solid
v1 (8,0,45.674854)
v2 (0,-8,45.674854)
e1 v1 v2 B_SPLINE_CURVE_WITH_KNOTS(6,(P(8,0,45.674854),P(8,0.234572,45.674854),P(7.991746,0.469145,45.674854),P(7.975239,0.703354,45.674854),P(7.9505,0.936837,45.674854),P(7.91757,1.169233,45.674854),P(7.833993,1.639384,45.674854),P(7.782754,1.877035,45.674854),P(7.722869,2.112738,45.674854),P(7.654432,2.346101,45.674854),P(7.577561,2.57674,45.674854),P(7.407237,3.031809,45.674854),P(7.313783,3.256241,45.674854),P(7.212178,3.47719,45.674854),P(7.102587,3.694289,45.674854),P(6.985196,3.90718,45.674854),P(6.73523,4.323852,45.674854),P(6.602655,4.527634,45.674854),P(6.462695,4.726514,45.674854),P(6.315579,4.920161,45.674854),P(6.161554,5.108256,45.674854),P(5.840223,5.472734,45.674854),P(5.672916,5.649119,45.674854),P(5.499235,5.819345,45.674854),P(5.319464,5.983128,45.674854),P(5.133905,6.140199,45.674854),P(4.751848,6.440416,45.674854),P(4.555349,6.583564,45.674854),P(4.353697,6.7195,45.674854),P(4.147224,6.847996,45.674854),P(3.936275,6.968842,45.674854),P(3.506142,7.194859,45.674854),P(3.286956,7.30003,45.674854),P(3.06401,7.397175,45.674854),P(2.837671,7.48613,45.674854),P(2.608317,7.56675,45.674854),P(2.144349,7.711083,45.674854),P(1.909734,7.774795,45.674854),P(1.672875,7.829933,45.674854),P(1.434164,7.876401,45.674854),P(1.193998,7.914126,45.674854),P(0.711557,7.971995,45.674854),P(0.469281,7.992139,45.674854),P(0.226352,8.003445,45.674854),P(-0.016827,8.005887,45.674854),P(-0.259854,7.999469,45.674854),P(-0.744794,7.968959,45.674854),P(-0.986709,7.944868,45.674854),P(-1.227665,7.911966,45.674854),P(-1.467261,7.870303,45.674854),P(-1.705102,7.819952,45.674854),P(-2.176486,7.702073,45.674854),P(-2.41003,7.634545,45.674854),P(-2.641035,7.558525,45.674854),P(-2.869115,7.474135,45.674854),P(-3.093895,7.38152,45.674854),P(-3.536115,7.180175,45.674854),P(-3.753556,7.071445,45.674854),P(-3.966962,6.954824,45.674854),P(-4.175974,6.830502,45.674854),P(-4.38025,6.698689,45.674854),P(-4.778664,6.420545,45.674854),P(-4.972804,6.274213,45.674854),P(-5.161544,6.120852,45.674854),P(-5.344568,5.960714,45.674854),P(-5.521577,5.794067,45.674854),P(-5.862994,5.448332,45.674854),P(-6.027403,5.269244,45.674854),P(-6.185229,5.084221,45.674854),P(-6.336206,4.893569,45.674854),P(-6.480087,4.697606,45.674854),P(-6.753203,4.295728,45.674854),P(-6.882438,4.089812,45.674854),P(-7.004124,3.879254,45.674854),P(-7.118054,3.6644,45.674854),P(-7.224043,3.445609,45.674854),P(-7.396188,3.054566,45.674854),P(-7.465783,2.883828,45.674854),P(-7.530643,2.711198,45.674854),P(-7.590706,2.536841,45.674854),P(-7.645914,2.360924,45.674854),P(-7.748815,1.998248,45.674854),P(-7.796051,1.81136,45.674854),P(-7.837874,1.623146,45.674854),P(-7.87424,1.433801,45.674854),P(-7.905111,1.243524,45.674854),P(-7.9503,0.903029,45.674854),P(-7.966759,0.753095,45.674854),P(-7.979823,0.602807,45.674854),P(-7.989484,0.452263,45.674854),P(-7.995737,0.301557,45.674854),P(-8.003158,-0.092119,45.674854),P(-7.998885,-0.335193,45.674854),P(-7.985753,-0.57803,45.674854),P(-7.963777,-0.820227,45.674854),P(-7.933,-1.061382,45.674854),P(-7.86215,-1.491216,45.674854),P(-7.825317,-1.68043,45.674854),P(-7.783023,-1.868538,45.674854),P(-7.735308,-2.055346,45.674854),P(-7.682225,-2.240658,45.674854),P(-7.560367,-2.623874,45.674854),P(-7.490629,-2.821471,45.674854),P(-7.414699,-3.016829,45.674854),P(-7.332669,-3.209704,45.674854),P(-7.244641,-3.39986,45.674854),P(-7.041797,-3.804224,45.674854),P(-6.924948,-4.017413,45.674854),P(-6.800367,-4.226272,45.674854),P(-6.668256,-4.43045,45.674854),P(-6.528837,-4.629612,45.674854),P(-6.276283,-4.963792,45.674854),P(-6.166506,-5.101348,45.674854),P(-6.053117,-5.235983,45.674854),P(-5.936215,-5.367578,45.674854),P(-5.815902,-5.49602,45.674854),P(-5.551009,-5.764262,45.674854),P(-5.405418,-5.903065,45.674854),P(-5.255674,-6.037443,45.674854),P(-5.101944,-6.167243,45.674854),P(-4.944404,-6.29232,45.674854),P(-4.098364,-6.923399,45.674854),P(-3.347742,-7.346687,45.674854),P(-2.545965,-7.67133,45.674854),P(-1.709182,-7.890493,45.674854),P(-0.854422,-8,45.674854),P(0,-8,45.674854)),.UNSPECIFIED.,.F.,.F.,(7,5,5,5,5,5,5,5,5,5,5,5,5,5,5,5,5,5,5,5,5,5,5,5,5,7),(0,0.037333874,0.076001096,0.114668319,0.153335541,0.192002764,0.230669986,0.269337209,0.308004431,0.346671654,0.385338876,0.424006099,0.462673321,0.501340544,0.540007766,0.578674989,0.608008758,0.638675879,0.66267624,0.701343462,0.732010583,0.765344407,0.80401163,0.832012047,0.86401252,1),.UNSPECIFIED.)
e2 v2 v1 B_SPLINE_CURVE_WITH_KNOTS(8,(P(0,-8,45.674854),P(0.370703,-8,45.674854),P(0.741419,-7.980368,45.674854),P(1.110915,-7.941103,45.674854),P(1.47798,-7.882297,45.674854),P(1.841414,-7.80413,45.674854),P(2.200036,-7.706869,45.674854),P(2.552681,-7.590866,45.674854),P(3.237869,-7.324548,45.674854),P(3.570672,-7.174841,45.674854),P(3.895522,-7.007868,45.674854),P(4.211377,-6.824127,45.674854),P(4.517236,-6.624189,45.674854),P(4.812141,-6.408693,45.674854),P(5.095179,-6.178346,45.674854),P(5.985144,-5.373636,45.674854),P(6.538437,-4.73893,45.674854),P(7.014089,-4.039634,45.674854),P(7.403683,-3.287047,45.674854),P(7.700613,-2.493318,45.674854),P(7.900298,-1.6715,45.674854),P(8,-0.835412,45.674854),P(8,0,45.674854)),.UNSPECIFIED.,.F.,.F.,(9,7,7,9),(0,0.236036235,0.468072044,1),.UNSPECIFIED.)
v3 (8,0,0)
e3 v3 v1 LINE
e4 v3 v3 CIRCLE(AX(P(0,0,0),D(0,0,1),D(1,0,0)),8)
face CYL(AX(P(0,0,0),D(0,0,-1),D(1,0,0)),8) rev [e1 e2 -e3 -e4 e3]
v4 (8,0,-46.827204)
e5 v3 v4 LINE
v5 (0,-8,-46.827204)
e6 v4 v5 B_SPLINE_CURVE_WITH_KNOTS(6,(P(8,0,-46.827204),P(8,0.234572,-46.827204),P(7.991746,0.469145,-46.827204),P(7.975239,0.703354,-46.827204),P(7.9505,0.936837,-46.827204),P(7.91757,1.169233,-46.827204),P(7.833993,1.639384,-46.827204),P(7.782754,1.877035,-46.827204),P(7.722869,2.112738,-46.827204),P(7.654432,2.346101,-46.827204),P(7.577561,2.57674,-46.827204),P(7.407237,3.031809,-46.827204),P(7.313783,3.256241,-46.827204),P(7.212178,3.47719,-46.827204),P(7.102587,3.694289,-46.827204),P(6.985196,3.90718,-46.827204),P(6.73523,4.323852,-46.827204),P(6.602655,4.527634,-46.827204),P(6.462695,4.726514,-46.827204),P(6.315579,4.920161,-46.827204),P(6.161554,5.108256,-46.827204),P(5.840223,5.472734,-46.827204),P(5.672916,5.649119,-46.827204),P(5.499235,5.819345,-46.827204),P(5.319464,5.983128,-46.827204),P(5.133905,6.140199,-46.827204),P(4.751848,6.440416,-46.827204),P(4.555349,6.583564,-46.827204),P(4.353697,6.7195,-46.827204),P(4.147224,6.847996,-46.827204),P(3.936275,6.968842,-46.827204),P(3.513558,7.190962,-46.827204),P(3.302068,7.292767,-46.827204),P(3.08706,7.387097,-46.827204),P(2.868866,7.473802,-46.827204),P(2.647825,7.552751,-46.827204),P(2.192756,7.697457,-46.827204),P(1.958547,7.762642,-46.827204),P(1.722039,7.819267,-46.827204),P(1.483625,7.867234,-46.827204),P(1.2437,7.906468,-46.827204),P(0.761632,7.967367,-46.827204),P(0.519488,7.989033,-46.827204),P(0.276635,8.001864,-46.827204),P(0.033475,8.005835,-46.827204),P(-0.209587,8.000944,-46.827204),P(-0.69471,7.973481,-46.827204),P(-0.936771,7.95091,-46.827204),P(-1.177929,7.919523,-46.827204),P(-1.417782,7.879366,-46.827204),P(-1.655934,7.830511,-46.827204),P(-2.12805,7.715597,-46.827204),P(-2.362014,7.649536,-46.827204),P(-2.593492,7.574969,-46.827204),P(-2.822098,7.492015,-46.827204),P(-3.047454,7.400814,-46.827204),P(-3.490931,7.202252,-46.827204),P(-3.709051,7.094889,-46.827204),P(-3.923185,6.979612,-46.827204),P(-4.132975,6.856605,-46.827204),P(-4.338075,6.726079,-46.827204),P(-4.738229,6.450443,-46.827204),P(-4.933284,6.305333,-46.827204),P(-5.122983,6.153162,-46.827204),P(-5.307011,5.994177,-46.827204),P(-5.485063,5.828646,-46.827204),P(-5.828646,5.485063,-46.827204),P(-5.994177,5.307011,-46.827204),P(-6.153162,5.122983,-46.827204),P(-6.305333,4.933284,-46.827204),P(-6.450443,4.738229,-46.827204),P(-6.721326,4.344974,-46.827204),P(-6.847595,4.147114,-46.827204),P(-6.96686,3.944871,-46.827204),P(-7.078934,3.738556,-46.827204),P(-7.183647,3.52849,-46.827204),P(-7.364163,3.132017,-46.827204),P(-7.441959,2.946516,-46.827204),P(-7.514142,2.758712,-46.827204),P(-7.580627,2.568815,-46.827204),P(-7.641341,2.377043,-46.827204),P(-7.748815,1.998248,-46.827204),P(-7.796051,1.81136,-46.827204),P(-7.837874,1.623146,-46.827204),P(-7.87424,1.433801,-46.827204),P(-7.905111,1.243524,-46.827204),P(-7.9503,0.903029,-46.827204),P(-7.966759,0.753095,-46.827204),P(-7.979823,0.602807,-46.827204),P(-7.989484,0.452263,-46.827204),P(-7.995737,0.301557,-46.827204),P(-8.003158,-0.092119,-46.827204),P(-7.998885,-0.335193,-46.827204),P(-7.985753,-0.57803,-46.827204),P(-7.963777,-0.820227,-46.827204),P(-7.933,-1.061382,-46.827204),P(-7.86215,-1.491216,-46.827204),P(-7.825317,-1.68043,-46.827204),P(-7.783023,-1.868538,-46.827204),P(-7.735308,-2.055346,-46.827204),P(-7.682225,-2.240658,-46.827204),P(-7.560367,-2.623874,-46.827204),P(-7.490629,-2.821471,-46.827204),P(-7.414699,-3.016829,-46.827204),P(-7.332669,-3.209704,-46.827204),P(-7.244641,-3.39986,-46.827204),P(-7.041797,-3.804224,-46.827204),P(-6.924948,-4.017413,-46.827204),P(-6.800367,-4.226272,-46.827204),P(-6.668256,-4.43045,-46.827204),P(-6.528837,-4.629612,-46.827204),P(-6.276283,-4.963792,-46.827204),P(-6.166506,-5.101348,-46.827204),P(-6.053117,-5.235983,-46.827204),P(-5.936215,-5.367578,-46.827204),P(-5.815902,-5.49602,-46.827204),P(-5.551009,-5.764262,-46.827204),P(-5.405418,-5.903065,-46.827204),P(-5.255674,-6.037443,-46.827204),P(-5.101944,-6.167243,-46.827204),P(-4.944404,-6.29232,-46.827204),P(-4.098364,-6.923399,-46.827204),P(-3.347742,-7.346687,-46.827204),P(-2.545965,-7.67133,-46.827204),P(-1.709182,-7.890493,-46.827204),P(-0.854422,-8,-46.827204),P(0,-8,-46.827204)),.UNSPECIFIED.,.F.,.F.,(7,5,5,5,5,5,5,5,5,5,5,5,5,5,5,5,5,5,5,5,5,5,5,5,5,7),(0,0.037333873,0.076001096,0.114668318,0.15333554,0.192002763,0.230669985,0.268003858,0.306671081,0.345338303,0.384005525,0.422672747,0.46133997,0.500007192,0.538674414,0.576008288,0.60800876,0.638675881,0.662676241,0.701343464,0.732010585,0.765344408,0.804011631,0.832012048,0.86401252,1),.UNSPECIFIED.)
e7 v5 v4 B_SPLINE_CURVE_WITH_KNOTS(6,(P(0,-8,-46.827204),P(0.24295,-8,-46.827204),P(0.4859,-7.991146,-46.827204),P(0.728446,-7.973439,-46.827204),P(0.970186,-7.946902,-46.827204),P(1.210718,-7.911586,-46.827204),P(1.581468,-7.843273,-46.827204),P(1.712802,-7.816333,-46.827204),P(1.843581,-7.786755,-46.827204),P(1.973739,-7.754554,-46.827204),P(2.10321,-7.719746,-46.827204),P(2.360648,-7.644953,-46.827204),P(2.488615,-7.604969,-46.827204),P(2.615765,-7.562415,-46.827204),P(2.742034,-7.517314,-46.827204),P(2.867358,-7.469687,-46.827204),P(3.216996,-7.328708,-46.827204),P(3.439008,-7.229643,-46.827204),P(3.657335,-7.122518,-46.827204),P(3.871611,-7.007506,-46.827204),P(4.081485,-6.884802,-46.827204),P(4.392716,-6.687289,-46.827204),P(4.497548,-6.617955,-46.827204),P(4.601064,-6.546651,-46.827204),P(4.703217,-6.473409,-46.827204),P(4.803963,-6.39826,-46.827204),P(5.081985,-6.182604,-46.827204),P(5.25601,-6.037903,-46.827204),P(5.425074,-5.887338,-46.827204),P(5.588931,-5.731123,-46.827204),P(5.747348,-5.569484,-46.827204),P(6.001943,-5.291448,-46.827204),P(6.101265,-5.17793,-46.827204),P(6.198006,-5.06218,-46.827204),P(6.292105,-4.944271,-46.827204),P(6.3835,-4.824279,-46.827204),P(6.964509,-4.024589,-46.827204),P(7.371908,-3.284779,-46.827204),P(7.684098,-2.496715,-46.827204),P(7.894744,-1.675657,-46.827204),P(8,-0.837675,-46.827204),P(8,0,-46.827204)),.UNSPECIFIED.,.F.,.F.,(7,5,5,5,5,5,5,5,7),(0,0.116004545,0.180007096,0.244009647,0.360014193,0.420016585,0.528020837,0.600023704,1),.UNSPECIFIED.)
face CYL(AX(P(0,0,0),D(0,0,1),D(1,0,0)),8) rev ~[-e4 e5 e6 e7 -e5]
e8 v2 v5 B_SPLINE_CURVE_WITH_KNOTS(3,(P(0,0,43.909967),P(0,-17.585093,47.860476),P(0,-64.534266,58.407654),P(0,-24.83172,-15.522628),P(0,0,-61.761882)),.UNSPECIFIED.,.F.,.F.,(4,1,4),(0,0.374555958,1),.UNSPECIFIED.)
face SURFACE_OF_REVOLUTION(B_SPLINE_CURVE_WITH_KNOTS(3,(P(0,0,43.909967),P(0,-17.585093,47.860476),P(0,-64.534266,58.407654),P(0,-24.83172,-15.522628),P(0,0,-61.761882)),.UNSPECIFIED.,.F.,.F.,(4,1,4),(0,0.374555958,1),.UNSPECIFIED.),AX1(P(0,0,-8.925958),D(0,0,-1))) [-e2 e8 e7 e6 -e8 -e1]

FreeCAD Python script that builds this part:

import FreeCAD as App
import Part
import Sketcher

V = App.Vector

doc = App.newDocument("Part")
body = doc.addObject("PartDesign::Body", "Body")

# Sketch on YZ plane
sketch1 = body.newObject("Sketcher::SketchObject", "Sketch")
sketch1.AttachmentSupport = (doc.getObject("YZ_Plane"), [""])
sketch1.MapMode = "FlatFace"
sketch1.addGeometry(Part.LineSegment(V(0, -61.761882, 0), V(0, 43.909967, 0)), False)
sketch1.addGeometry(Part.BSplineCurve([V(0, 43.909967, 0), V(-17.585093, 47.860476, 0), V(-64.534266, 58.407654, 0), V(-24.83172, -15.522628, 0), V(0, -61.761882, 0)], [4, 1, 4], [0, 0.374555958, 1], False, 3, [1, 1, 1, 1, 1], False), False)
sketch1.addConstraint(Sketcher.Constraint("Block", 1))
sketch1.addConstraint(Sketcher.Constraint("Coincident", 0, 1, 1, 2))
sketch1.addConstraint(Sketcher.Constraint("Coincident", 1, 1, 0, 2))
revolution = body.newObject("PartDesign::Revolution", "Revolution")
revolution.Profile = sketch1
revolution.ReferenceAxis = (sketch1, ["V_Axis"])
revolution.Angle = 360

# Sketch on XY plane
sketch2 = body.newObject("Sketcher::SketchObject", "Sketch001")
sketch2.AttachmentSupport = (doc.getObject("XY_Plane"), [""])
sketch2.MapMode = "FlatFace"
sketch2.addGeometry(Part.Circle(V(0, 0, 0), V(0, 0, 1), 8), False)
sketch2.addConstraint(Sketcher.Constraint("Coincident", 0, 3, -1, 1))
sketch2.addConstraint(Sketcher.Constraint("Diameter", 0, 16.0))
pocket1 = body.newObject("PartDesign::Pocket", "Pocket")
pocket1.Profile = sketch2
pocket1.Type = "ThroughAll"
pocket1.Midplane = True

doc.recompute()
